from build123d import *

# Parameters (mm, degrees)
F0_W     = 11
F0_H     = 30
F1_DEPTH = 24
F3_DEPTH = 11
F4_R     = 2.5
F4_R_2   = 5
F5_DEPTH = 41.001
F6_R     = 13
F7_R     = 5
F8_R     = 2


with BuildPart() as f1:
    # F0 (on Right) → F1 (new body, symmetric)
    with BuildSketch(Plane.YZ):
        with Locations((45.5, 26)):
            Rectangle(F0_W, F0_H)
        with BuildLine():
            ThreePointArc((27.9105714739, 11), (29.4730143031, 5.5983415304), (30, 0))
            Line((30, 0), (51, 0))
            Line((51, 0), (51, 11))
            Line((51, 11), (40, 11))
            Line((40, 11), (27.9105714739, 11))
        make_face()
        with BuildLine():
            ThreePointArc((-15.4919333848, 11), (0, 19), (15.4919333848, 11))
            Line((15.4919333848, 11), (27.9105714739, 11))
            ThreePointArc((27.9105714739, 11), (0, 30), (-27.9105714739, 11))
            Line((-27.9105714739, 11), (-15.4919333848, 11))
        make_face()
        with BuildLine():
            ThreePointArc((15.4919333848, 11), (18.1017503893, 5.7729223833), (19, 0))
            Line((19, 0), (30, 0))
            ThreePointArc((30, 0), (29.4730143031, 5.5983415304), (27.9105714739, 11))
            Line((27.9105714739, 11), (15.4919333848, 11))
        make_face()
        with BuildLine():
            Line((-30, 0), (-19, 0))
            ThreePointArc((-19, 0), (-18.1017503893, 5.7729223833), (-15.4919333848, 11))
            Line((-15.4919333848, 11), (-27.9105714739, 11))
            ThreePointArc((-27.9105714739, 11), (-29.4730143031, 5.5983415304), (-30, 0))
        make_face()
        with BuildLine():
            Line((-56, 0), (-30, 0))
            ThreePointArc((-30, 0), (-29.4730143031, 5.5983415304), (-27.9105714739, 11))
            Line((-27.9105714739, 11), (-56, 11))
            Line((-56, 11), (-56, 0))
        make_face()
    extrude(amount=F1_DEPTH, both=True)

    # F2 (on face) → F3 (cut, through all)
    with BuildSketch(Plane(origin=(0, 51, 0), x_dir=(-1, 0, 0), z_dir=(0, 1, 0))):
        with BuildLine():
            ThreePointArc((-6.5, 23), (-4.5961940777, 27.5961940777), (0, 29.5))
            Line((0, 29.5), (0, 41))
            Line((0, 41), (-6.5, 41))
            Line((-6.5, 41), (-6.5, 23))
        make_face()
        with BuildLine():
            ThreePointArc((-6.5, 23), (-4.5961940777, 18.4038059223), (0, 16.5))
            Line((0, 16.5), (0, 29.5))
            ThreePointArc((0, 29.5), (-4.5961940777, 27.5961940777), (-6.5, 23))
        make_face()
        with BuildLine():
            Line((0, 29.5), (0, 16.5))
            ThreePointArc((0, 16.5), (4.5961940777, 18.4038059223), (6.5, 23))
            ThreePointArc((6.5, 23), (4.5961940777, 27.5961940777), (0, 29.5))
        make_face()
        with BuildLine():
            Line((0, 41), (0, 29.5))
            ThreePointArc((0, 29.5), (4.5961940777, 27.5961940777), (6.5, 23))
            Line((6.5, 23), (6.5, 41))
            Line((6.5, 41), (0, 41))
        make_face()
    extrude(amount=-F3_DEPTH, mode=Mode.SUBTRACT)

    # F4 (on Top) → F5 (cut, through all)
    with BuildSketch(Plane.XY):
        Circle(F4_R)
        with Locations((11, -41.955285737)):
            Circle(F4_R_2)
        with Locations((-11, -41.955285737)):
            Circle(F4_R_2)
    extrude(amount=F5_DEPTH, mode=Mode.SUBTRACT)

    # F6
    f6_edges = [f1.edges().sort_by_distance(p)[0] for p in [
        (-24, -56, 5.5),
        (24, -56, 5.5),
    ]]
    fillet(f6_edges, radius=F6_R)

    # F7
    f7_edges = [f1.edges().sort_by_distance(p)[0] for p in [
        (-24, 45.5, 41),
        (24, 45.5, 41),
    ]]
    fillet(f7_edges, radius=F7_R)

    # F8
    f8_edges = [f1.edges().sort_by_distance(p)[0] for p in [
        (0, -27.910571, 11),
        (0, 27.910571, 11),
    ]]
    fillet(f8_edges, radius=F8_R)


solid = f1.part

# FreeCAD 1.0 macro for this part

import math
import FreeCAD as App
import Part
import Sketcher
from FreeCAD import Vector


def edges_at(feature, points):
    """Names of the edges that pass closest to the given points."""
    edges = feature.Shape.Edges
    near = lambda p: min(range(len(edges)), key=lambda i: edges[i].distToShape(Part.Vertex(*p))[0])
    return sorted({f"Edge{near(p) + 1}" for p in points})

doc = App.newDocument("Part")
body = doc.addObject("PartDesign::Body", "Body")

sketch1 = body.newObject("Sketcher::SketchObject", "Sketch")
sketch1.AttachmentSupport = (doc.getObject("YZ_Plane"), [""])
sketch1.MapMode = "FlatFace"
sketch1.addGeometry([
    Part.LineSegment(Vector(40, 41, 0), Vector(40, 11, 0)),
    Part.LineSegment(Vector(40, 11, 0), Vector(28, 11, 0)),
    Part.ArcOfCircle(Part.Circle(Vector(0, 0, 0), Vector(0, 0, 1), 30), math.radians(22), math.radians(158)),
    Part.LineSegment(Vector(-28, 11, 0), Vector(-56, 11, 0)),
    Part.LineSegment(Vector(-56, 11, 0), Vector(-56, 0, 0)),
    Part.LineSegment(Vector(-56, 0, 0), Vector(-19, 0, 0)),
    Part.ArcOfCircle(Part.Circle(Vector(0, 0, 0), Vector(0, 0, 1), 19), math.radians(145), math.radians(180)),
    Part.ArcOfCircle(Part.Circle(Vector(0, 0, 0), Vector(0, 0, 1), 19), math.radians(35), math.radians(145)),
    Part.ArcOfCircle(Part.Circle(Vector(0, 0, 0), Vector(0, 0, 1), 19), math.radians(0), math.radians(35)),
    Part.LineSegment(Vector(19, 0, 0), Vector(51, 0, 0)),
    Part.LineSegment(Vector(51, 0, 0), Vector(51, 41, 0)),
    Part.LineSegment(Vector(51, 41, 0), Vector(40, 41, 0)),
], False)
sketch1.addConstraint([
    Sketcher.Constraint("Coincident", 0, 2, 1, 1),
    Sketcher.Constraint("Coincident", 1, 2, 2, 1),
    Sketcher.Constraint("Coincident", 2, 2, 3, 1),
    Sketcher.Constraint("Coincident", 3, 2, 4, 1),
    Sketcher.Constraint("Coincident", 4, 2, 5, 1),
    Sketcher.Constraint("Coincident", 5, 2, 6, 2),
    Sketcher.Constraint("Tangent", 6, 1, 7, 2),
    Sketcher.Constraint("Tangent", 7, 1, 8, 2),
    Sketcher.Constraint("Coincident", 8, 1, 9, 1),
    Sketcher.Constraint("Coincident", 9, 2, 10, 1),
    Sketcher.Constraint("Coincident", 10, 2, 11, 1),
    Sketcher.Constraint("Coincident", 11, 2, 0, 1),
    Sketcher.Constraint("Vertical", 0),
    Sketcher.Constraint("Horizontal", 1),
    Sketcher.Constraint("Horizontal", 3),
    Sketcher.Constraint("Vertical", 4),
    Sketcher.Constraint("Horizontal", 5),
    Sketcher.Constraint("Horizontal", 9),
    Sketcher.Constraint("Vertical", 10),
    Sketcher.Constraint("Horizontal", 11),
    Sketcher.Constraint("Coincident", 2, 3, -1, 1),
    Sketcher.Constraint("Coincident", 6, 3, -1, 1),
    Sketcher.Constraint("Coincident", 8, 3, -1, 1),
    Sketcher.Constraint("PointOnObject", 4, 2, -1),
    Sketcher.Constraint("PointOnObject", 8, 1, -1),
    Sketcher.Constraint("Horizontal", 1, 2, 2, 2),
    Sketcher.Constraint("Horizontal", 3, 2, 6, 1),
    Sketcher.Constraint("Horizontal", 6, 1, 7, 1),
    Sketcher.Constraint("Equal", 11, 4),
    Sketcher.Constraint("Radius", 2, 30.0),
    Sketcher.Constraint("Radius", 6, 19.0),
    Sketcher.Constraint("DistanceX", 5, 1, 5, 2, 37.0),
    Sketcher.Constraint("DistanceX", 9, 1, 9, 2, 32.0),
    Sketcher.Constraint("DistanceX", 11, 2, 11, 1, 11.0),
    Sketcher.Constraint("DistanceY", 0, 2, 0, 1, 30.0),
])
pad1 = body.newObject("PartDesign::Pad", "Pad")
pad1.Profile = sketch1
pad1.Length = 48
pad1.Midplane = True

sketch2 = body.newObject("Sketcher::SketchObject", "Sketch001")
sketch2.AttachmentSupport = (doc.getObject("XZ_Plane"), [""])
sketch2.MapMode = "FlatFace"
sketch2.AttachmentOffset = App.Placement(Vector(0, 0, -51), App.Rotation())
sketch2.addGeometry([
    Part.LineSegment(Vector(6, 41, 0), Vector(6, 23, 0)),
    Part.ArcOfCircle(Part.Circle(Vector(0, 23, 0), Vector(0, 0, 1), 6), math.radians(-90), math.radians(0)),
    Part.ArcOfCircle(Part.Circle(Vector(0, 23, 0), Vector(0, 0, 1), 6), math.radians(180), math.radians(270)),
    Part.LineSegment(Vector(-6, 23, 0), Vector(-6, 41, 0)),
    Part.LineSegment(Vector(-6, 41, 0), Vector(6, 41, 0)),
], False)
sketch2.addConstraint([
    Sketcher.Constraint("Tangent", 0, 2, 1, 2),
    Sketcher.Constraint("Tangent", 1, 1, 2, 2),
    Sketcher.Constraint("Tangent", 2, 1, 3, 1),
    Sketcher.Constraint("Coincident", 3, 2, 4, 1),
    Sketcher.Constraint("Coincident", 4, 2, 0, 1),
    Sketcher.Constraint("Vertical", 0),
    Sketcher.Constraint("Vertical", 3),
    Sketcher.Constraint("Horizontal", 4),
    Sketcher.Constraint("Equal", 1, 2),
    Sketcher.Constraint("PointOnObject", 1, 3, -2),
    Sketcher.Constraint("PointOnObject", 1, 1, -2),
    Sketcher.Constraint("Radius", 1, 6.5),
    Sketcher.Constraint("DistanceY", 0, 2, 0, 1, 18.0),
    Sketcher.Constraint("DistanceY", -1, 1, 1, 3, 23.0),
])
pocket1 = body.newObject("PartDesign::Pocket", "Pocket")
pocket1.Profile = sketch2
pocket1.Length = 11
pocket1.Reversed = True

sketch3 = body.newObject("Sketcher::SketchObject", "Sketch002")
sketch3.AttachmentSupport = (doc.getObject("XY_Plane"), [""])
sketch3.MapMode = "FlatFace"
sketch3.addGeometry([
    Part.Circle(Vector(0, 0, 0), Vector(0, 0, 1), 2.5),
    Part.Circle(Vector(11, -42, 0), Vector(0, 0, 1), 5),
    Part.Circle(Vector(-11, -42, 0), Vector(0, 0, 1), 5),
], False)
sketch3.addConstraint([
    Sketcher.Constraint("Coincident", 0, 3, -1, 1),
    Sketcher.Constraint("Equal", 1, 2),
    Sketcher.Constraint("Symmetric", 1, 3, 2, 3, -2),
    Sketcher.Constraint("Diameter", 0, 5.0),
    Sketcher.Constraint("Diameter", 1, 10.0),
    Sketcher.Constraint("DistanceX", -1, 1, 1, 3, 11.0),
    Sketcher.Constraint("DistanceY", 1, 3, -1, 1, 41.955286),
])
pocket2 = body.newObject("PartDesign::Pocket", "Pocket001")
pocket2.Profile = sketch3
pocket2.Type = "ThroughAll"
pocket2.Reversed = True
doc.recompute()

fillet = body.newObject("PartDesign::Fillet", "Fillet")
fillet.Base = (pocket2, edges_at(pocket2, [(-24, -56, 5.5), (24, -56, 5.5)]))
fillet.Radius = 13
doc.recompute()

fillet2 = body.newObject("PartDesign::Fillet", "Fillet001")
fillet2.Base = (fillet, edges_at(fillet, [(-24, 45.5, 41), (24, 45.5, 41)]))
fillet2.Radius = 5
doc.recompute()

fillet3 = body.newObject("PartDesign::Fillet", "Fillet002")
fillet3.Base = (fillet2, edges_at(fillet2, [(0, -27.911, 11), (0, 27.911, 11)]))
fillet3.Radius = 2

doc.recompute()
